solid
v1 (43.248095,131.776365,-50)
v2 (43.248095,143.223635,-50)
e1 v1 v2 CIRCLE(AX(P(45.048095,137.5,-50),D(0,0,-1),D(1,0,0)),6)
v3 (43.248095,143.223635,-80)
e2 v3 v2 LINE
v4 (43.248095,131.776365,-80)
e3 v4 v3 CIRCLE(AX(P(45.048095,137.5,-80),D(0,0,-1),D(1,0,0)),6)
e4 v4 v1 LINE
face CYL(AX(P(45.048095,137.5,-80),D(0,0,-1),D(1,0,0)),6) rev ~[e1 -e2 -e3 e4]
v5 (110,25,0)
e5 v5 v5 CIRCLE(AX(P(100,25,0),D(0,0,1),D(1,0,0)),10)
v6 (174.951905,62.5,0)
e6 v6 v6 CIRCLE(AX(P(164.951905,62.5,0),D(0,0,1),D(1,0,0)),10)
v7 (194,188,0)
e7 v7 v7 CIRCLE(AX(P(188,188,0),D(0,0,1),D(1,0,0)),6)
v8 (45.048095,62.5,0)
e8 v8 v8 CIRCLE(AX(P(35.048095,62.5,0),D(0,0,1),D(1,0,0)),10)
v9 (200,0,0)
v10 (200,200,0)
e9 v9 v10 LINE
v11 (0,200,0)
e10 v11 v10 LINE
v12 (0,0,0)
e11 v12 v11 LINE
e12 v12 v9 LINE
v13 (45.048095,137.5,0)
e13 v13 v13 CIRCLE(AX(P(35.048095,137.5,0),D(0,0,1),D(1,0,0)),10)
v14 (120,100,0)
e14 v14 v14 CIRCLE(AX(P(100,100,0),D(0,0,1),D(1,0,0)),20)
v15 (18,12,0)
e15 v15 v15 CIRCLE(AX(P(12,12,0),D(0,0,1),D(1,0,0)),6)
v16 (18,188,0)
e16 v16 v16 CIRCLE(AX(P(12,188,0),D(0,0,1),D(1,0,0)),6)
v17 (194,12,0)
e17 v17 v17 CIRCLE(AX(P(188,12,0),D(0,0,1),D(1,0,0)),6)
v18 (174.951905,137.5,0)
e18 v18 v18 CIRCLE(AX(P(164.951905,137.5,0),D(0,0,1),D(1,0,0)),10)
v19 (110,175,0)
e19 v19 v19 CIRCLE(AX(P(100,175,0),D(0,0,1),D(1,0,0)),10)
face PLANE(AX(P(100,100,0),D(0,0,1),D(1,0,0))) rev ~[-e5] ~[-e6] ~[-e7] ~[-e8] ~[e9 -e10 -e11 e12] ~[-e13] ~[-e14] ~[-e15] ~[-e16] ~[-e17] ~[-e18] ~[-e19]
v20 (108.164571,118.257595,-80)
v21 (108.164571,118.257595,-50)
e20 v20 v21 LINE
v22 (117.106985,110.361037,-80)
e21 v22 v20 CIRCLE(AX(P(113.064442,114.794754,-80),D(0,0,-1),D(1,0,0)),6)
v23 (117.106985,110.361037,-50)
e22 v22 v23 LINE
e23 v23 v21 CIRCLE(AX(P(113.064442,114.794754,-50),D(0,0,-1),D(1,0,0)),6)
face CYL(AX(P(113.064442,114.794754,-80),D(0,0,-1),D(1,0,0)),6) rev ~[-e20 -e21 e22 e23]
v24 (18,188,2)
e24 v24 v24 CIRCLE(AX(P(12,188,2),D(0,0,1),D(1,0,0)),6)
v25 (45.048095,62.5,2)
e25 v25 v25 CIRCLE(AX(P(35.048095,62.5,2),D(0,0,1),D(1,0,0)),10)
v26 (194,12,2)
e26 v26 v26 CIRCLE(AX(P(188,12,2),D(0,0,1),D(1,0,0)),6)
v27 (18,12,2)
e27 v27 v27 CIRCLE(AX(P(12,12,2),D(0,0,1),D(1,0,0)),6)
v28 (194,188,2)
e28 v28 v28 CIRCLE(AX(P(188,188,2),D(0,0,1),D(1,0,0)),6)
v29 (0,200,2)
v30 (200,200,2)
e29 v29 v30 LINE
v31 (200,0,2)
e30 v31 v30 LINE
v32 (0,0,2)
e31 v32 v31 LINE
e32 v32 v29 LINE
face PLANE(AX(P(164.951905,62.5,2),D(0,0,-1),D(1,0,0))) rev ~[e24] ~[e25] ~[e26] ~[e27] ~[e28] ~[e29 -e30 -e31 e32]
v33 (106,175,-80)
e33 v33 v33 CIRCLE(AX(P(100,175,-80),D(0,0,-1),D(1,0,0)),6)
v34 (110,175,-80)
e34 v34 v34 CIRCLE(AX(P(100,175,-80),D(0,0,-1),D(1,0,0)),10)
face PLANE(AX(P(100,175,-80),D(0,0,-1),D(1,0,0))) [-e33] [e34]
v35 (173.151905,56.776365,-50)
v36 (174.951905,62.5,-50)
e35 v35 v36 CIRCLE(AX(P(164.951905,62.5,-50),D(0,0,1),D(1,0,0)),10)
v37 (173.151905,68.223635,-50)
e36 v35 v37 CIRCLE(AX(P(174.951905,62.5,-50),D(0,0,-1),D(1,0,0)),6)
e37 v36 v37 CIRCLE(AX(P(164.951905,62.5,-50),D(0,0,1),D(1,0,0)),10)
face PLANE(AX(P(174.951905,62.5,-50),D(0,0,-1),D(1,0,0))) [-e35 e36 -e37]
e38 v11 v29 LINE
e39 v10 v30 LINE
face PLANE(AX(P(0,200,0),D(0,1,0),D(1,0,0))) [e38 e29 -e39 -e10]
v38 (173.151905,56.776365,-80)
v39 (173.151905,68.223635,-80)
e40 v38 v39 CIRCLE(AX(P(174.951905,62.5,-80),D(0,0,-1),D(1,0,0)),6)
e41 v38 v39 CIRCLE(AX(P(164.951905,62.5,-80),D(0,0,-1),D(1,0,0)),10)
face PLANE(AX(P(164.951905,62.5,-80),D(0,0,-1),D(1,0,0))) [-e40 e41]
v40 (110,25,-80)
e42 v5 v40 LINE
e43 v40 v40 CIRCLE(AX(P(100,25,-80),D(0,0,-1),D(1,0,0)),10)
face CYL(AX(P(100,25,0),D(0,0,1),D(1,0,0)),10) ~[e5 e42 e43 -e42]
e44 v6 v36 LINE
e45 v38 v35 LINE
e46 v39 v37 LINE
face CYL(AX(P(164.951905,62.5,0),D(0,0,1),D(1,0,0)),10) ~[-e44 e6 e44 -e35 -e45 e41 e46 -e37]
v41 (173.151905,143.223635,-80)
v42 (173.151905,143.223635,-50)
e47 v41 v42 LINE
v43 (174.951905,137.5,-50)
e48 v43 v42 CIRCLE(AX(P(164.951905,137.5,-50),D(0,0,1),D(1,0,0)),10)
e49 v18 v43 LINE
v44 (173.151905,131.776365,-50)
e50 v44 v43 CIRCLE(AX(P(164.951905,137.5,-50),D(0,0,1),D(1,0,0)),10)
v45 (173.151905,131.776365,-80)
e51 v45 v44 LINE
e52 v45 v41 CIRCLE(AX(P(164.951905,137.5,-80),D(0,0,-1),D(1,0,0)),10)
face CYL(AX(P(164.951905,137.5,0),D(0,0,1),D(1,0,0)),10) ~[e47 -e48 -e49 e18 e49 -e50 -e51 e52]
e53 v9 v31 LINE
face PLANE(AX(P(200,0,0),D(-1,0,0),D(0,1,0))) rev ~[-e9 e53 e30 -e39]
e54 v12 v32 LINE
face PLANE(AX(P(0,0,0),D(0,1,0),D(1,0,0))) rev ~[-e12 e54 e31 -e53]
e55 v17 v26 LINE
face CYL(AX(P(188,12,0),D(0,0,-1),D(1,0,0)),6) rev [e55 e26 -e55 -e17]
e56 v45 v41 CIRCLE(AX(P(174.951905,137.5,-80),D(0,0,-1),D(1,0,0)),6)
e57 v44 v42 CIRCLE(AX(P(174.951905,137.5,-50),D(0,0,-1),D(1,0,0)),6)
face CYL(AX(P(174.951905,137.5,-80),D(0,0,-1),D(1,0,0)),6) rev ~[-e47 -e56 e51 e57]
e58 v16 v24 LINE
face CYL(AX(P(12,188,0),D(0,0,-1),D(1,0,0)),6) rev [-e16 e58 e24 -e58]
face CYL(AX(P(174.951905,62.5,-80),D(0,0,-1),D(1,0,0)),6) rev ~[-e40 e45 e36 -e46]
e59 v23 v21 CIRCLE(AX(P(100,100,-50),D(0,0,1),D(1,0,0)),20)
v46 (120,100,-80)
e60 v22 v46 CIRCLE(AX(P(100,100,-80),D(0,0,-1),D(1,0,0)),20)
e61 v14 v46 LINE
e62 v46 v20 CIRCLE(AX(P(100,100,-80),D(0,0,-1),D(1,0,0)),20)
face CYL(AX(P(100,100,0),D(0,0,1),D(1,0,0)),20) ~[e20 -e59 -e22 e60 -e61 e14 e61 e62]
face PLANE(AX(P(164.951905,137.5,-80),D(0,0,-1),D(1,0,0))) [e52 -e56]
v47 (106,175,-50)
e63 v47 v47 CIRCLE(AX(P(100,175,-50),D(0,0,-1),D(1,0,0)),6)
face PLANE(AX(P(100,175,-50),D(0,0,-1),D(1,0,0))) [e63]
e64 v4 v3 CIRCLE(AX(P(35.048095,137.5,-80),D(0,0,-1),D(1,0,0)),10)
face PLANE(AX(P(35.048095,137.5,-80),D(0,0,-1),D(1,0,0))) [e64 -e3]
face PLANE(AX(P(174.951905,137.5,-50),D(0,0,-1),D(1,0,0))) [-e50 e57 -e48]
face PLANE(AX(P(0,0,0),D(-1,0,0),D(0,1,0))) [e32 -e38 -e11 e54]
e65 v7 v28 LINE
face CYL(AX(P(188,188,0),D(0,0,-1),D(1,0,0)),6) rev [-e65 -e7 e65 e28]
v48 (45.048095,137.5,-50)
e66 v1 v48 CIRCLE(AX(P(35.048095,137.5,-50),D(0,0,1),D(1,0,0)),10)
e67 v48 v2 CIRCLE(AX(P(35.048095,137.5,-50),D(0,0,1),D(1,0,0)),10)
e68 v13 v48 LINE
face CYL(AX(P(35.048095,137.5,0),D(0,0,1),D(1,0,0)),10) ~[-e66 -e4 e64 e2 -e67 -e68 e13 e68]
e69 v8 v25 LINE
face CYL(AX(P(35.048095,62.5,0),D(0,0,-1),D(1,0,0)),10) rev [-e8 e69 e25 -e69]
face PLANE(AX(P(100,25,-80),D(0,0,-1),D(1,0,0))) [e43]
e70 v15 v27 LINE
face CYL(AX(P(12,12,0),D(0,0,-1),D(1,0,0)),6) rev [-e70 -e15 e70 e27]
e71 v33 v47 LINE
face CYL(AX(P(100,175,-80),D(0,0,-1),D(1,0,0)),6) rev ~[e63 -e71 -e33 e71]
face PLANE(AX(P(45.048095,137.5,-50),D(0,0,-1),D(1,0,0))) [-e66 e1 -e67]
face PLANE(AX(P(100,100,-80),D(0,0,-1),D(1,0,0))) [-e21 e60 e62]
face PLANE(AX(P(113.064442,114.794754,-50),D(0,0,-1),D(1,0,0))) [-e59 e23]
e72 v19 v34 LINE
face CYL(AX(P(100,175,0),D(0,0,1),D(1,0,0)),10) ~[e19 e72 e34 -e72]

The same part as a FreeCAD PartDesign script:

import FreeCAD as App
import Part
import Sketcher
from FreeCAD import Vector

doc = App.newDocument("Part")
params = doc.addObject("Spreadsheet::Sheet", "Params")
for row, (alias, value) in enumerate([
    ("sketch1_diameter", "12 mm"),
    ("sketch1_diameter2", "20 mm"),
    ("sketch1_diameter3", "40 mm"),
    ("sketch1_width", "200 mm"),
    ("pad1_length", "2 mm"),
    ("sketch2_diameter", "20 mm"),
    ("sketch2_diameter2", "40 mm"),
    ("pad2_length", "80 mm"),
    ("pad2_length2", "2 mm"),
    ("sketch3_diameter", "12 mm"),
    ("pocket1_length", "30 mm"),
], start=1):
    params.set(f"A{row}", alias)
    params.set(f"B{row}", "=" + value)
    params.setAlias(f"B{row}", alias)

body = doc.addObject("PartDesign::Body", "Body")

# Sketch on XY plane
sketch1 = body.newObject("Sketcher::SketchObject", "Sketch")
sketch1.AttachmentSupport = (doc.getObject("XY_Plane"), [""])
sketch1.MapMode = "FlatFace"
sketch1.addGeometry(Part.LineSegment(Vector(0, 200, 0), Vector(0, 0, 0)), False)
sketch1.addGeometry(Part.LineSegment(Vector(0, 0, 0), Vector(200, 0, 0)), False)
sketch1.addGeometry(Part.LineSegment(Vector(200, 0, 0), Vector(200, 200, 0)), False)
sketch1.addGeometry(Part.LineSegment(Vector(200, 200, 0), Vector(0, 200, 0)), False)
sketch1.addGeometry(Part.Circle(Vector(12, 12, 0), Vector(0, 0, 1), 6), False)
sketch1.addGeometry(Part.Circle(Vector(35, 62, 0), Vector(0, 0, 1), 10), False)
sketch1.addGeometry(Part.Circle(Vector(100, 25, 0), Vector(0, 0, 1), 10), False)
sketch1.addGeometry(Part.Circle(Vector(188, 12, 0), Vector(0, 0, 1), 6), False)
sketch1.addGeometry(Part.Circle(Vector(165, 62, 0), Vector(0, 0, 1), 10), False)
sketch1.addGeometry(Part.Circle(Vector(35, 138, 0), Vector(0, 0, 1), 10), False)
sketch1.addGeometry(Part.Circle(Vector(12, 188, 0), Vector(0, 0, 1), 6), False)
sketch1.addGeometry(Part.Circle(Vector(100, 100, 0), Vector(0, 0, 1), 20), False)
sketch1.addGeometry(Part.Circle(Vector(165, 138, 0), Vector(0, 0, 1), 10), False)
sketch1.addGeometry(Part.Circle(Vector(100, 175, 0), Vector(0, 0, 1), 10), False)
sketch1.addGeometry(Part.Circle(Vector(188, 188, 0), Vector(0, 0, 1), 6), False)
sketch1.addConstraint(Sketcher.Constraint("Coincident", 0, 2, 1, 1))
sketch1.addConstraint(Sketcher.Constraint("Coincident", 1, 2, 2, 1))
sketch1.addConstraint(Sketcher.Constraint("Coincident", 2, 2, 3, 1))
sketch1.addConstraint(Sketcher.Constraint("Coincident", 3, 2, 0, 1))
sketch1.addConstraint(Sketcher.Constraint("Vertical", 0))
sketch1.addConstraint(Sketcher.Constraint("Horizontal", 1))
sketch1.addConstraint(Sketcher.Constraint("Vertical", 2))
sketch1.addConstraint(Sketcher.Constraint("Horizontal", 3))
sketch1.addConstraint(Sketcher.Constraint("Coincident", 0, 2, -1, 1))
sketch1.addConstraint(Sketcher.Constraint("Equal", 5, 6))
sketch1.addConstraint(Sketcher.Constraint("Equal", 4, 7))
sketch1.addConstraint(Sketcher.Constraint("Equal", 6, 8))
sketch1.addConstraint(Sketcher.Constraint("Equal", 8, 9))
sketch1.addConstraint(Sketcher.Constraint("Equal", 7, 10))
sketch1.addConstraint(Sketcher.Constraint("Equal", 9, 12))
sketch1.addConstraint(Sketcher.Constraint("Equal", 12, 13))
sketch1.addConstraint(Sketcher.Constraint("Equal", 10, 14))
sketch1.addConstraint(Sketcher.Constraint("Horizontal", 4, 3, 7, 3))
sketch1.addConstraint(Sketcher.Constraint("Horizontal", 5, 3, 8, 3))
sketch1.addConstraint(Sketcher.Constraint("Horizontal", 9, 3, 12, 3))
sketch1.addConstraint(Sketcher.Constraint("Horizontal", 10, 3, 14, 3))
sketch1.addConstraint(Sketcher.Constraint("Vertical", 5, 3, 9, 3))
sketch1.addConstraint(Sketcher.Constraint("Vertical", 4, 3, 10, 3))
sketch1.addConstraint(Sketcher.Constraint("Vertical", 6, 3, 11, 3))
sketch1.addConstraint(Sketcher.Constraint("Vertical", 8, 3, 12, 3))
sketch1.addConstraint(Sketcher.Constraint("Vertical", 11, 3, 13, 3))
sketch1.addConstraint(Sketcher.Constraint("Vertical", 7, 3, 14, 3))
sketch1.addConstraint(Sketcher.Constraint("Equal", 3, 0))
sketch1.addConstraint(Sketcher.Constraint("Diameter", 4, 12.0))
sketch1.addConstraint(Sketcher.Constraint("Diameter", 5, 20.0))
sketch1.addConstraint(Sketcher.Constraint("Diameter", 11, 40.0))
sketch1.addConstraint(Sketcher.Constraint("DistanceX", 1, 1, 1, 2, 200.0))
sketch1.addConstraint(Sketcher.Constraint("DistanceX", -1, 1, 4, 3, 12.0))
sketch1.addConstraint(Sketcher.Constraint("DistanceY", -1, 1, 4, 3, 12.0))
sketch1.addConstraint(Sketcher.Constraint("DistanceX", -1, 1, 6, 3, 100.0))
sketch1.addConstraint(Sketcher.Constraint("DistanceY", -1, 1, 6, 3, 25.0))
sketch1.addConstraint(Sketcher.Constraint("DistanceX", -1, 1, 7, 3, 188.0))
sketch1.addConstraint(Sketcher.Constraint("DistanceY", -1, 1, 10, 3, 188.0))
sketch1.addConstraint(Sketcher.Constraint("DistanceY", -1, 1, 11, 3, 100.0))
sketch1.addConstraint(Sketcher.Constraint("DistanceY", -1, 1, 13, 3, 175.0))
sketch1.addConstraint(Sketcher.Constraint("DistanceY", 5, 3, 9, 3, 75.0))
sketch1.addConstraint(Sketcher.Constraint("DistanceY", -1, 1, 5, 3, 62.5))
sketch1.addConstraint(Sketcher.Constraint("DistanceX", 5, 3, 8, 3, 129.90381))
sketch1.addConstraint(Sketcher.Constraint("DistanceX", -1, 1, 5, 3, 35.048095))
sketch1.setExpression("Constraints[28]", "Params.sketch1_diameter")
sketch1.setExpression("Constraints[29]", "Params.sketch1_diameter2")
sketch1.setExpression("Constraints[30]", "Params.sketch1_diameter3")
sketch1.setExpression("Constraints[31]", "Params.sketch1_width")
pad1 = body.newObject("PartDesign::Pad", "Pad")
pad1.Profile = sketch1
pad1.setExpression("Length", "Params.pad1_length")

# Sketch on XY plane
sketch2 = body.newObject("Sketcher::SketchObject", "Sketch001")
sketch2.AttachmentSupport = (doc.getObject("XY_Plane"), [""])
sketch2.MapMode = "FlatFace"
sketch2.addGeometry(Part.Circle(Vector(165, 62, 0), Vector(0, 0, 1), 10), False)
sketch2.addGeometry(Part.Circle(Vector(100, 175, 0), Vector(0, 0, 1), 10), False)
sketch2.addGeometry(Part.Circle(Vector(100, 25, 0), Vector(0, 0, 1), 10), False)
sketch2.addGeometry(Part.Circle(Vector(35, 138, 0), Vector(0, 0, 1), 10), False)
sketch2.addGeometry(Part.Circle(Vector(165, 138, 0), Vector(0, 0, 1), 10), False)
sketch2.addGeometry(Part.Circle(Vector(100, 100, 0), Vector(0, 0, 1), 20), False)
sketch2.addConstraint(Sketcher.Constraint("Equal", 0, 1))
sketch2.addConstraint(Sketcher.Constraint("Equal", 1, 2))
sketch2.addConstraint(Sketcher.Constraint("Equal", 2, 3))
sketch2.addConstraint(Sketcher.Constraint("Equal", 3, 4))
sketch2.addConstraint(Sketcher.Constraint("Horizontal", 3, 3, 4, 3))
sketch2.addConstraint(Sketcher.Constraint("Vertical", 1, 3, 2, 3))
sketch2.addConstraint(Sketcher.Constraint("Vertical", 0, 3, 4, 3))
sketch2.addConstraint(Sketcher.Constraint("Vertical", 2, 3, 5, 3))
sketch2.addConstraint(Sketcher.Constraint("Diameter", 0, 20.0))
sketch2.addConstraint(Sketcher.Constraint("Diameter", 5, 40.0))
sketch2.addConstraint(Sketcher.Constraint("DistanceX", -1, 1, 1, 3, 100.0))
sketch2.addConstraint(Sketcher.Constraint("DistanceY", -1, 1, 1, 3, 175.0))
sketch2.addConstraint(Sketcher.Constraint("DistanceY", -1, 1, 2, 3, 25.0))
sketch2.addConstraint(Sketcher.Constraint("DistanceY", -1, 1, 5, 3, 100.0))
sketch2.addConstraint(Sketcher.Constraint("DistanceY", 0, 3, 3, 3, 75.0))
sketch2.addConstraint(Sketcher.Constraint("DistanceY", -1, 1, 0, 3, 62.5))
sketch2.addConstraint(Sketcher.Constraint("DistanceX", 3, 3, 0, 3, 129.90381))
sketch2.addConstraint(Sketcher.Constraint("DistanceX", -1, 1, 0, 3, 164.951905))
sketch2.setExpression("Constraints[8]", "Params.sketch2_diameter")
sketch2.setExpression("Constraints[9]", "Params.sketch2_diameter2")
pad2 = body.newObject("PartDesign::Pad", "Pad001")
pad2.Profile = sketch2
pad2.Type = "TwoLengths"
pad2.setExpression("Length", "Params.pad2_length")
pad2.setExpression("Length2", "Params.pad2_length2")
pad2.Reversed = True

# Sketch on XY plane
sketch3 = body.newObject("Sketcher::SketchObject", "Sketch002")
sketch3.AttachmentSupport = (doc.getObject("XY_Plane"), [""])
sketch3.MapMode = "FlatFace"
sketch3.AttachmentOffset = App.Placement(Vector(0, 0, -80), App.Rotation())
sketch3.addGeometry(Part.Circle(Vector(113, 115, 0), Vector(0, 0, 1), 6), False)
sketch3.addGeometry(Part.Circle(Vector(35, 62, 0), Vector(0, 0, 1), 6), False)
sketch3.addGeometry(Part.Circle(Vector(100, 175, 0), Vector(0, 0, 1), 6), False)
sketch3.addGeometry(Part.Circle(Vector(45, 138, 0), Vector(0, 0, 1), 6), False)
sketch3.addGeometry(Part.Circle(Vector(175, 62, 0), Vector(0, 0, 1), 6), False)
sketch3.addGeometry(Part.Circle(Vector(175, 138, 0), Vector(0, 0, 1), 6), False)
sketch3.addConstraint(Sketcher.Constraint("Equal", 0, 1))
sketch3.addConstraint(Sketcher.Constraint("Equal", 1, 2))
sketch3.addConstraint(Sketcher.Constraint("Equal", 2, 3))
sketch3.addConstraint(Sketcher.Constraint("Equal", 3, 4))
sketch3.addConstraint(Sketcher.Constraint("Equal", 4, 5))
sketch3.addConstraint(Sketcher.Constraint("Horizontal", 1, 3, 4, 3))
sketch3.addConstraint(Sketcher.Constraint("Horizontal", 3, 3, 5, 3))
sketch3.addConstraint(Sketcher.Constraint("Vertical", 4, 3, 5, 3))
sketch3.addConstraint(Sketcher.Constraint("Diameter", 0, 12.0))
sketch3.addConstraint(Sketcher.Constraint("DistanceX", -1, 1, 2, 3, 100.0))
sketch3.addConstraint(Sketcher.Constraint("DistanceY", -1, 1, 2, 3, 175.0))
sketch3.addConstraint(Sketcher.Constraint("DistanceX", 1, 3, 3, 3, 10.0))
sketch3.addConstraint(Sketcher.Constraint("DistanceY", 1, 3, 3, 3, 75.0))
sketch3.addConstraint(Sketcher.Constraint("DistanceY", -1, 1, 1, 3, 62.5))
sketch3.addConstraint(Sketcher.Constraint("DistanceX", -1, 1, 0, 3, 113.064442))
sketch3.addConstraint(Sketcher.Constraint("DistanceX", 1, 3, 4, 3, 139.90381))
sketch3.addConstraint(Sketcher.Constraint("DistanceY", -1, 1, 0, 3, 114.794754))
sketch3.addConstraint(Sketcher.Constraint("DistanceX", -1, 1, 1, 3, 35.048095))
sketch3.setExpression("Constraints[8]", "Params.sketch3_diameter")
pocket1 = body.newObject("PartDesign::Pocket", "Pocket")
pocket1.Profile = sketch3
pocket1.setExpression("Length", "Params.pocket1_length")
pocket1.Reversed = True

doc.recompute()
